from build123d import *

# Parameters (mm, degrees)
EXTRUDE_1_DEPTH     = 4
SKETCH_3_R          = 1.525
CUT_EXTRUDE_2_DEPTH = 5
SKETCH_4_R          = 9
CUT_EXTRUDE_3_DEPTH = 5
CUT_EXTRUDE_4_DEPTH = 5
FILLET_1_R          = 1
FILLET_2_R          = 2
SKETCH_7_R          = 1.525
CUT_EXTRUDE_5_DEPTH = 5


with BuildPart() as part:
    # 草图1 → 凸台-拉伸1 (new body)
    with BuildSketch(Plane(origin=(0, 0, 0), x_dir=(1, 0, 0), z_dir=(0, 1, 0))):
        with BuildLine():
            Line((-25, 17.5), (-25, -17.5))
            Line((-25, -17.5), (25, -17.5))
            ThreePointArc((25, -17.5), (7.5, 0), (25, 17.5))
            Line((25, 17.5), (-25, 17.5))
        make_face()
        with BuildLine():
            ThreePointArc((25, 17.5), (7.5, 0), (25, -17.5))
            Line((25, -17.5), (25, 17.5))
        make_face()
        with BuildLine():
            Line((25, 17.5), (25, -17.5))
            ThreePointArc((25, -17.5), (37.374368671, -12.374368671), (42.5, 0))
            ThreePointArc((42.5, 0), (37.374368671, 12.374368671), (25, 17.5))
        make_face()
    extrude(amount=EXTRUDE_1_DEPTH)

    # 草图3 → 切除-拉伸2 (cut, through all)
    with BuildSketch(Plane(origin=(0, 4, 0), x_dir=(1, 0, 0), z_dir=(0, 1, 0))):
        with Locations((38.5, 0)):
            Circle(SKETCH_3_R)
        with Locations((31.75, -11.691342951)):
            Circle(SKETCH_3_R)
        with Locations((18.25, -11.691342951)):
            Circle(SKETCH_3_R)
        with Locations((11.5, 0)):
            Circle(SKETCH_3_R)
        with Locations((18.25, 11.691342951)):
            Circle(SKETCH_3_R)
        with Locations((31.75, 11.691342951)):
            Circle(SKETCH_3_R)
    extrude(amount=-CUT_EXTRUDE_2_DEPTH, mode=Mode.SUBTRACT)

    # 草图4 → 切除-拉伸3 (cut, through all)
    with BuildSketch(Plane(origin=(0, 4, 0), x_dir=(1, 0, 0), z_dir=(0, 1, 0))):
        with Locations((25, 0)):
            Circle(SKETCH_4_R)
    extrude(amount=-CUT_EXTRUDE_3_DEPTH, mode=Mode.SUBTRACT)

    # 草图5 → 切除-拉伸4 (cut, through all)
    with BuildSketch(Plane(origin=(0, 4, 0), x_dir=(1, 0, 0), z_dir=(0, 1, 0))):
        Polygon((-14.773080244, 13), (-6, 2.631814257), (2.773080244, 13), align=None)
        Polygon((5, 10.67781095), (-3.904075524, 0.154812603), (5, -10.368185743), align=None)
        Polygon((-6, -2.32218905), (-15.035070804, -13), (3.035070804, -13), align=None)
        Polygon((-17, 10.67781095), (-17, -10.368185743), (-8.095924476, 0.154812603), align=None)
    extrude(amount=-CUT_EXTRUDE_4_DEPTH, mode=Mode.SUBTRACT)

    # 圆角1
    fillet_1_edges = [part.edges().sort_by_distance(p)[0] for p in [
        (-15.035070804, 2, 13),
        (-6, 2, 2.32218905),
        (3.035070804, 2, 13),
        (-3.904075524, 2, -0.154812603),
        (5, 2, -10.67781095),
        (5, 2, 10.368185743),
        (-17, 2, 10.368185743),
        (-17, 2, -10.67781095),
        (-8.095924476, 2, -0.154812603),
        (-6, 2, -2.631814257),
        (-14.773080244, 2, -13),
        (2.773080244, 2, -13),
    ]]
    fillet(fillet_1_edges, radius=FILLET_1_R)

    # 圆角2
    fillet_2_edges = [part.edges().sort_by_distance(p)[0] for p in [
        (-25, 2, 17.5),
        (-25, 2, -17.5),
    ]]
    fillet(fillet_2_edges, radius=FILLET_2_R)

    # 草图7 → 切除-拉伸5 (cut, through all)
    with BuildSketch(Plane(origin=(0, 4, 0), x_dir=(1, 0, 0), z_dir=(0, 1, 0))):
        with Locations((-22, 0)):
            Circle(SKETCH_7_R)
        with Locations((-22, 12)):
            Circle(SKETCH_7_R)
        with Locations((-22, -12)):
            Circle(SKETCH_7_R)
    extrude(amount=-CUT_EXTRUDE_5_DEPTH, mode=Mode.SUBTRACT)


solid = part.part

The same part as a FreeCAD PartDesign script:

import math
import FreeCAD as App
import Part
import Sketcher


def edges_at(feature, points):
    """Names of the edges that pass closest to the given points."""
    edges = feature.Shape.Edges
    near = lambda p: min(range(len(edges)), key=lambda i: edges[i].distToShape(Part.Vertex(*p))[0])
    return sorted({f"Edge{near(p) + 1}" for p in points})


def add_polygon(sketch, points):
    """Adds a closed chain of lines whose ends are joined by coincident constraints."""
    first, n = sketch.GeometryCount, len(points)
    for a, b in zip(points, points[1:] + points[:1]):
        sketch.addGeometry(Part.LineSegment(App.Vector(*a, 0), App.Vector(*b, 0)), False)
    for i in range(n):
        sketch.addConstraint(Sketcher.Constraint("Coincident", first + i, 2, first + (i + 1) % n, 1))

doc = App.newDocument("Part")
body = doc.addObject("PartDesign::Body", "Body")

sketch1 = body.newObject("Sketcher::SketchObject", "Sketch")
sketch1.AttachmentSupport = (doc.getObject("XZ_Plane"), [""])
sketch1.MapMode = "FlatFace"
sketch1.addGeometry([
    Part.LineSegment(App.Vector(-25, -18, 0), App.Vector(-25, 18, 0)),
    Part.LineSegment(App.Vector(-25, 18, 0), App.Vector(25, 18, 0)),
    Part.ArcOfCircle(Part.Circle(App.Vector(25, 0, 0), App.Vector(0, 0, 1), 17), math.radians(0), math.radians(90)),
    Part.ArcOfCircle(Part.Circle(App.Vector(25, 0, 0), App.Vector(0, 0, 1), 17), math.radians(-90), math.radians(0)),
    Part.LineSegment(App.Vector(25, -18, 0), App.Vector(-25, -18, 0)),
], False)
sketch1.addConstraint([
    Sketcher.Constraint("Coincident", 0, 2, 1, 1),
    Sketcher.Constraint("Tangent", 1, 2, 2, 2),
    Sketcher.Constraint("Tangent", 2, 1, 3, 2),
    Sketcher.Constraint("Tangent", 3, 1, 4, 1),
    Sketcher.Constraint("Coincident", 4, 2, 0, 1),
    Sketcher.Constraint("Vertical", 0),
    Sketcher.Constraint("Horizontal", 1),
    Sketcher.Constraint("Horizontal", 4),
    Sketcher.Constraint("Equal", 2, 3),
    Sketcher.Constraint("Symmetric", 0, 2, 3, 1, -1, 1),
    Sketcher.Constraint("PointOnObject", 2, 1, -1),
    Sketcher.Constraint("Radius", 2, 17.5),
    Sketcher.Constraint("DistanceX", 1, 1, 1, 2, 50.0),
])
pad1 = body.newObject("PartDesign::Pad", "Pad")
pad1.Profile = sketch1
pad1.Length = 4
pad1.Reversed = True

sketch2 = body.newObject("Sketcher::SketchObject", "Sketch001")
sketch2.AttachmentSupport = (doc.getObject("XZ_Plane"), [""])
sketch2.MapMode = "FlatFace"
sketch2.AttachmentOffset = App.Placement(App.Vector(0, 0, -4), App.Rotation())
sketch2.addGeometry([
    Part.Circle(App.Vector(38.5, 0, 0), App.Vector(0, 0, 1), 1.5),
    Part.Circle(App.Vector(31.8, 11.7, 0), App.Vector(0, 0, 1), 1.5),
    Part.Circle(App.Vector(18.2, 11.7, 0), App.Vector(0, 0, 1), 1.5),
    Part.Circle(App.Vector(11.5, 0, 0), App.Vector(0, 0, 1), 1.5),
    Part.Circle(App.Vector(18.2, -11.7, 0), App.Vector(0, 0, 1), 1.5),
    Part.Circle(App.Vector(31.8, -11.7, 0), App.Vector(0, 0, 1), 1.5),
], False)
sketch2.addConstraint([
    Sketcher.Constraint("Equal", 0, 1),
    Sketcher.Constraint("Equal", 1, 2),
    Sketcher.Constraint("Equal", 2, 3),
    Sketcher.Constraint("Equal", 3, 4),
    Sketcher.Constraint("Equal", 4, 5),
    Sketcher.Constraint("Symmetric", 2, 3, 4, 3, -1),
    Sketcher.Constraint("Symmetric", 1, 3, 5, 3, -1),
    Sketcher.Constraint("PointOnObject", 0, 3, -1),
    Sketcher.Constraint("PointOnObject", 3, 3, -1),
    Sketcher.Constraint("Horizontal", 1, 3, 2, 3),
    Sketcher.Constraint("Diameter", 0, 3.05),
    Sketcher.Constraint("DistanceX", 3, 3, 0, 3, 27.0),
    Sketcher.Constraint("DistanceX", -1, 1, 0, 3, 38.5),
    Sketcher.Constraint("DistanceX", 2, 3, 1, 3, 13.5),
    Sketcher.Constraint("DistanceX", -1, 1, 1, 3, 31.75),
    Sketcher.Constraint("DistanceY", -1, 1, 1, 3, 11.691343),
])
pocket1 = body.newObject("PartDesign::Pocket", "Pocket")
pocket1.Profile = sketch2
pocket1.Type = "ThroughAll"
pocket1.Reversed = True

sketch3 = body.newObject("Sketcher::SketchObject", "Sketch002")
sketch3.AttachmentSupport = (doc.getObject("XZ_Plane"), [""])
sketch3.MapMode = "FlatFace"
sketch3.AttachmentOffset = App.Placement(App.Vector(0, 0, -4), App.Rotation())
sketch3.addGeometry(Part.Circle(App.Vector(25, 0, 0), App.Vector(0, 0, 1), 9), False)
sketch3.addConstraint([
    Sketcher.Constraint("PointOnObject", 0, 3, -1),
    Sketcher.Constraint("Diameter", 0, 18.0),
    Sketcher.Constraint("DistanceX", -1, 1, 0, 3, 25.0),
])
pocket2 = body.newObject("PartDesign::Pocket", "Pocket001")
pocket2.Profile = sketch3
pocket2.Type = "ThroughAll"
pocket2.Reversed = True

sketch4 = body.newObject("Sketcher::SketchObject", "Sketch003")
sketch4.AttachmentSupport = (doc.getObject("XZ_Plane"), [""])
sketch4.MapMode = "FlatFace"
sketch4.AttachmentOffset = App.Placement(App.Vector(0, 0, -4), App.Rotation())
add_polygon(sketch4, [(-15, -13), (-6, -3), (3, -13)])
add_polygon(sketch4, [(5, -11), (-4, 0), (5, 10)])
add_polygon(sketch4, [(-6, 2), (-15, 13), (3, 13)])
add_polygon(sketch4, [(-17, -11), (-17, 10), (-8, 0)])
sketch4.addConstraint([
    Sketcher.Constraint("Horizontal", 2),
    Sketcher.Constraint("Vertical", 5),
    Sketcher.Constraint("Horizontal", 7),
    Sketcher.Constraint("Vertical", 9),
    Sketcher.Constraint("Parallel", 1, 3),
    Sketcher.Constraint("Parallel", 0, 4),
    Sketcher.Constraint("Parallel", 3, 6),
    Sketcher.Constraint("Parallel", 4, 8),
    Sketcher.Constraint("Parallel", 6, 10),
    Sketcher.Constraint("Parallel", 8, 11),
    Sketcher.Constraint("Horizontal", 4, 2, 9, 2),
    Sketcher.Constraint("Horizontal", 3, 2, 10, 2),
    Sketcher.Constraint("Horizontal", 5, 2, 11, 2),
    Sketcher.Constraint("Vertical", 0, 2, 8, 2),
    Sketcher.Constraint("DistanceX", 0, 2, -1, 1, 6.0),
    Sketcher.Constraint("DistanceY", 1, 2, -1, 1, 13.0),
    Sketcher.Constraint("DistanceX", -1, 1, 4, 2, 5.0),
    Sketcher.Constraint("DistanceY", -1, 1, 6, 2, 13.0),
    Sketcher.Constraint("DistanceX", 9, 2, -1, 1, 17.0),
    Sketcher.Constraint("DistanceY", 0, 2, 4, 2, 13.0),
    Sketcher.Constraint("DistanceY", 11, 2, 8, 2, 13.0),
    Sketcher.Constraint("DistanceY", 0, 2, 3, 2, 2.477002),
    Sketcher.Constraint("DistanceX", 2, 2, 2, 1, 17.54616),
    Sketcher.Constraint("DistanceX", 7, 1, 7, 2, 18.070142),
])
pocket3 = body.newObject("PartDesign::Pocket", "Pocket002")
pocket3.Profile = sketch4
pocket3.Type = "ThroughAll"
pocket3.Reversed = True
doc.recompute()

fillet = body.newObject("PartDesign::Fillet", "Fillet")
fillet.Base = (pocket3, edges_at(pocket3, [
    (-15.035, 2, 13),
    (-6, 2, 2.322),
    (3.035, 2, 13),
    (-3.904, 2, -0.155),
    (5, 2, -10.678),
    (5, 2, 10.368),
    (-17, 2, 10.368),
    (-17, 2, -10.678),
    (-8.096, 2, -0.155),
    (-6, 2, -2.632),
    (-14.773, 2, -13),
    (2.773, 2, -13),
]))
fillet.Radius = 1
doc.recompute()

fillet2 = body.newObject("PartDesign::Fillet", "Fillet001")
fillet2.Base = (fillet, edges_at(fillet, [(-25, 2, 17.5), (-25, 2, -17.5)]))
fillet2.Radius = 2

sketch5 = body.newObject("Sketcher::SketchObject", "Sketch004")
sketch5.AttachmentSupport = (doc.getObject("XZ_Plane"), [""])
sketch5.MapMode = "FlatFace"
sketch5.AttachmentOffset = App.Placement(App.Vector(0, 0, -4), App.Rotation())
sketch5.addGeometry([
    Part.Circle(App.Vector(-22, 0, 0), App.Vector(0, 0, 1), 1.5),
    Part.Circle(App.Vector(-22, -12, 0), App.Vector(0, 0, 1), 1.5),
    Part.Circle(App.Vector(-22, 12, 0), App.Vector(0, 0, 1), 1.5),
], False)
sketch5.addConstraint([
    Sketcher.Constraint("Equal", 0, 1),
    Sketcher.Constraint("Equal", 1, 2),
    Sketcher.Constraint("Symmetric", 1, 3, 2, 3, -1),
    Sketcher.Constraint("PointOnObject", 0, 3, -1),
    Sketcher.Constraint("Vertical", 0, 3, 1, 3),
    Sketcher.Constraint("Diameter", 0, 3.05),
    Sketcher.Constraint("DistanceX", 0, 3, -1, 1, 22.0),
    Sketcher.Constraint("DistanceY", 1, 3, -1, 1, 12.0),
])
pocket4 = body.newObject("PartDesign::Pocket", "Pocket003")
pocket4.Profile = sketch5
pocket4.Type = "ThroughAll"
pocket4.Reversed = True

doc.recompute()
